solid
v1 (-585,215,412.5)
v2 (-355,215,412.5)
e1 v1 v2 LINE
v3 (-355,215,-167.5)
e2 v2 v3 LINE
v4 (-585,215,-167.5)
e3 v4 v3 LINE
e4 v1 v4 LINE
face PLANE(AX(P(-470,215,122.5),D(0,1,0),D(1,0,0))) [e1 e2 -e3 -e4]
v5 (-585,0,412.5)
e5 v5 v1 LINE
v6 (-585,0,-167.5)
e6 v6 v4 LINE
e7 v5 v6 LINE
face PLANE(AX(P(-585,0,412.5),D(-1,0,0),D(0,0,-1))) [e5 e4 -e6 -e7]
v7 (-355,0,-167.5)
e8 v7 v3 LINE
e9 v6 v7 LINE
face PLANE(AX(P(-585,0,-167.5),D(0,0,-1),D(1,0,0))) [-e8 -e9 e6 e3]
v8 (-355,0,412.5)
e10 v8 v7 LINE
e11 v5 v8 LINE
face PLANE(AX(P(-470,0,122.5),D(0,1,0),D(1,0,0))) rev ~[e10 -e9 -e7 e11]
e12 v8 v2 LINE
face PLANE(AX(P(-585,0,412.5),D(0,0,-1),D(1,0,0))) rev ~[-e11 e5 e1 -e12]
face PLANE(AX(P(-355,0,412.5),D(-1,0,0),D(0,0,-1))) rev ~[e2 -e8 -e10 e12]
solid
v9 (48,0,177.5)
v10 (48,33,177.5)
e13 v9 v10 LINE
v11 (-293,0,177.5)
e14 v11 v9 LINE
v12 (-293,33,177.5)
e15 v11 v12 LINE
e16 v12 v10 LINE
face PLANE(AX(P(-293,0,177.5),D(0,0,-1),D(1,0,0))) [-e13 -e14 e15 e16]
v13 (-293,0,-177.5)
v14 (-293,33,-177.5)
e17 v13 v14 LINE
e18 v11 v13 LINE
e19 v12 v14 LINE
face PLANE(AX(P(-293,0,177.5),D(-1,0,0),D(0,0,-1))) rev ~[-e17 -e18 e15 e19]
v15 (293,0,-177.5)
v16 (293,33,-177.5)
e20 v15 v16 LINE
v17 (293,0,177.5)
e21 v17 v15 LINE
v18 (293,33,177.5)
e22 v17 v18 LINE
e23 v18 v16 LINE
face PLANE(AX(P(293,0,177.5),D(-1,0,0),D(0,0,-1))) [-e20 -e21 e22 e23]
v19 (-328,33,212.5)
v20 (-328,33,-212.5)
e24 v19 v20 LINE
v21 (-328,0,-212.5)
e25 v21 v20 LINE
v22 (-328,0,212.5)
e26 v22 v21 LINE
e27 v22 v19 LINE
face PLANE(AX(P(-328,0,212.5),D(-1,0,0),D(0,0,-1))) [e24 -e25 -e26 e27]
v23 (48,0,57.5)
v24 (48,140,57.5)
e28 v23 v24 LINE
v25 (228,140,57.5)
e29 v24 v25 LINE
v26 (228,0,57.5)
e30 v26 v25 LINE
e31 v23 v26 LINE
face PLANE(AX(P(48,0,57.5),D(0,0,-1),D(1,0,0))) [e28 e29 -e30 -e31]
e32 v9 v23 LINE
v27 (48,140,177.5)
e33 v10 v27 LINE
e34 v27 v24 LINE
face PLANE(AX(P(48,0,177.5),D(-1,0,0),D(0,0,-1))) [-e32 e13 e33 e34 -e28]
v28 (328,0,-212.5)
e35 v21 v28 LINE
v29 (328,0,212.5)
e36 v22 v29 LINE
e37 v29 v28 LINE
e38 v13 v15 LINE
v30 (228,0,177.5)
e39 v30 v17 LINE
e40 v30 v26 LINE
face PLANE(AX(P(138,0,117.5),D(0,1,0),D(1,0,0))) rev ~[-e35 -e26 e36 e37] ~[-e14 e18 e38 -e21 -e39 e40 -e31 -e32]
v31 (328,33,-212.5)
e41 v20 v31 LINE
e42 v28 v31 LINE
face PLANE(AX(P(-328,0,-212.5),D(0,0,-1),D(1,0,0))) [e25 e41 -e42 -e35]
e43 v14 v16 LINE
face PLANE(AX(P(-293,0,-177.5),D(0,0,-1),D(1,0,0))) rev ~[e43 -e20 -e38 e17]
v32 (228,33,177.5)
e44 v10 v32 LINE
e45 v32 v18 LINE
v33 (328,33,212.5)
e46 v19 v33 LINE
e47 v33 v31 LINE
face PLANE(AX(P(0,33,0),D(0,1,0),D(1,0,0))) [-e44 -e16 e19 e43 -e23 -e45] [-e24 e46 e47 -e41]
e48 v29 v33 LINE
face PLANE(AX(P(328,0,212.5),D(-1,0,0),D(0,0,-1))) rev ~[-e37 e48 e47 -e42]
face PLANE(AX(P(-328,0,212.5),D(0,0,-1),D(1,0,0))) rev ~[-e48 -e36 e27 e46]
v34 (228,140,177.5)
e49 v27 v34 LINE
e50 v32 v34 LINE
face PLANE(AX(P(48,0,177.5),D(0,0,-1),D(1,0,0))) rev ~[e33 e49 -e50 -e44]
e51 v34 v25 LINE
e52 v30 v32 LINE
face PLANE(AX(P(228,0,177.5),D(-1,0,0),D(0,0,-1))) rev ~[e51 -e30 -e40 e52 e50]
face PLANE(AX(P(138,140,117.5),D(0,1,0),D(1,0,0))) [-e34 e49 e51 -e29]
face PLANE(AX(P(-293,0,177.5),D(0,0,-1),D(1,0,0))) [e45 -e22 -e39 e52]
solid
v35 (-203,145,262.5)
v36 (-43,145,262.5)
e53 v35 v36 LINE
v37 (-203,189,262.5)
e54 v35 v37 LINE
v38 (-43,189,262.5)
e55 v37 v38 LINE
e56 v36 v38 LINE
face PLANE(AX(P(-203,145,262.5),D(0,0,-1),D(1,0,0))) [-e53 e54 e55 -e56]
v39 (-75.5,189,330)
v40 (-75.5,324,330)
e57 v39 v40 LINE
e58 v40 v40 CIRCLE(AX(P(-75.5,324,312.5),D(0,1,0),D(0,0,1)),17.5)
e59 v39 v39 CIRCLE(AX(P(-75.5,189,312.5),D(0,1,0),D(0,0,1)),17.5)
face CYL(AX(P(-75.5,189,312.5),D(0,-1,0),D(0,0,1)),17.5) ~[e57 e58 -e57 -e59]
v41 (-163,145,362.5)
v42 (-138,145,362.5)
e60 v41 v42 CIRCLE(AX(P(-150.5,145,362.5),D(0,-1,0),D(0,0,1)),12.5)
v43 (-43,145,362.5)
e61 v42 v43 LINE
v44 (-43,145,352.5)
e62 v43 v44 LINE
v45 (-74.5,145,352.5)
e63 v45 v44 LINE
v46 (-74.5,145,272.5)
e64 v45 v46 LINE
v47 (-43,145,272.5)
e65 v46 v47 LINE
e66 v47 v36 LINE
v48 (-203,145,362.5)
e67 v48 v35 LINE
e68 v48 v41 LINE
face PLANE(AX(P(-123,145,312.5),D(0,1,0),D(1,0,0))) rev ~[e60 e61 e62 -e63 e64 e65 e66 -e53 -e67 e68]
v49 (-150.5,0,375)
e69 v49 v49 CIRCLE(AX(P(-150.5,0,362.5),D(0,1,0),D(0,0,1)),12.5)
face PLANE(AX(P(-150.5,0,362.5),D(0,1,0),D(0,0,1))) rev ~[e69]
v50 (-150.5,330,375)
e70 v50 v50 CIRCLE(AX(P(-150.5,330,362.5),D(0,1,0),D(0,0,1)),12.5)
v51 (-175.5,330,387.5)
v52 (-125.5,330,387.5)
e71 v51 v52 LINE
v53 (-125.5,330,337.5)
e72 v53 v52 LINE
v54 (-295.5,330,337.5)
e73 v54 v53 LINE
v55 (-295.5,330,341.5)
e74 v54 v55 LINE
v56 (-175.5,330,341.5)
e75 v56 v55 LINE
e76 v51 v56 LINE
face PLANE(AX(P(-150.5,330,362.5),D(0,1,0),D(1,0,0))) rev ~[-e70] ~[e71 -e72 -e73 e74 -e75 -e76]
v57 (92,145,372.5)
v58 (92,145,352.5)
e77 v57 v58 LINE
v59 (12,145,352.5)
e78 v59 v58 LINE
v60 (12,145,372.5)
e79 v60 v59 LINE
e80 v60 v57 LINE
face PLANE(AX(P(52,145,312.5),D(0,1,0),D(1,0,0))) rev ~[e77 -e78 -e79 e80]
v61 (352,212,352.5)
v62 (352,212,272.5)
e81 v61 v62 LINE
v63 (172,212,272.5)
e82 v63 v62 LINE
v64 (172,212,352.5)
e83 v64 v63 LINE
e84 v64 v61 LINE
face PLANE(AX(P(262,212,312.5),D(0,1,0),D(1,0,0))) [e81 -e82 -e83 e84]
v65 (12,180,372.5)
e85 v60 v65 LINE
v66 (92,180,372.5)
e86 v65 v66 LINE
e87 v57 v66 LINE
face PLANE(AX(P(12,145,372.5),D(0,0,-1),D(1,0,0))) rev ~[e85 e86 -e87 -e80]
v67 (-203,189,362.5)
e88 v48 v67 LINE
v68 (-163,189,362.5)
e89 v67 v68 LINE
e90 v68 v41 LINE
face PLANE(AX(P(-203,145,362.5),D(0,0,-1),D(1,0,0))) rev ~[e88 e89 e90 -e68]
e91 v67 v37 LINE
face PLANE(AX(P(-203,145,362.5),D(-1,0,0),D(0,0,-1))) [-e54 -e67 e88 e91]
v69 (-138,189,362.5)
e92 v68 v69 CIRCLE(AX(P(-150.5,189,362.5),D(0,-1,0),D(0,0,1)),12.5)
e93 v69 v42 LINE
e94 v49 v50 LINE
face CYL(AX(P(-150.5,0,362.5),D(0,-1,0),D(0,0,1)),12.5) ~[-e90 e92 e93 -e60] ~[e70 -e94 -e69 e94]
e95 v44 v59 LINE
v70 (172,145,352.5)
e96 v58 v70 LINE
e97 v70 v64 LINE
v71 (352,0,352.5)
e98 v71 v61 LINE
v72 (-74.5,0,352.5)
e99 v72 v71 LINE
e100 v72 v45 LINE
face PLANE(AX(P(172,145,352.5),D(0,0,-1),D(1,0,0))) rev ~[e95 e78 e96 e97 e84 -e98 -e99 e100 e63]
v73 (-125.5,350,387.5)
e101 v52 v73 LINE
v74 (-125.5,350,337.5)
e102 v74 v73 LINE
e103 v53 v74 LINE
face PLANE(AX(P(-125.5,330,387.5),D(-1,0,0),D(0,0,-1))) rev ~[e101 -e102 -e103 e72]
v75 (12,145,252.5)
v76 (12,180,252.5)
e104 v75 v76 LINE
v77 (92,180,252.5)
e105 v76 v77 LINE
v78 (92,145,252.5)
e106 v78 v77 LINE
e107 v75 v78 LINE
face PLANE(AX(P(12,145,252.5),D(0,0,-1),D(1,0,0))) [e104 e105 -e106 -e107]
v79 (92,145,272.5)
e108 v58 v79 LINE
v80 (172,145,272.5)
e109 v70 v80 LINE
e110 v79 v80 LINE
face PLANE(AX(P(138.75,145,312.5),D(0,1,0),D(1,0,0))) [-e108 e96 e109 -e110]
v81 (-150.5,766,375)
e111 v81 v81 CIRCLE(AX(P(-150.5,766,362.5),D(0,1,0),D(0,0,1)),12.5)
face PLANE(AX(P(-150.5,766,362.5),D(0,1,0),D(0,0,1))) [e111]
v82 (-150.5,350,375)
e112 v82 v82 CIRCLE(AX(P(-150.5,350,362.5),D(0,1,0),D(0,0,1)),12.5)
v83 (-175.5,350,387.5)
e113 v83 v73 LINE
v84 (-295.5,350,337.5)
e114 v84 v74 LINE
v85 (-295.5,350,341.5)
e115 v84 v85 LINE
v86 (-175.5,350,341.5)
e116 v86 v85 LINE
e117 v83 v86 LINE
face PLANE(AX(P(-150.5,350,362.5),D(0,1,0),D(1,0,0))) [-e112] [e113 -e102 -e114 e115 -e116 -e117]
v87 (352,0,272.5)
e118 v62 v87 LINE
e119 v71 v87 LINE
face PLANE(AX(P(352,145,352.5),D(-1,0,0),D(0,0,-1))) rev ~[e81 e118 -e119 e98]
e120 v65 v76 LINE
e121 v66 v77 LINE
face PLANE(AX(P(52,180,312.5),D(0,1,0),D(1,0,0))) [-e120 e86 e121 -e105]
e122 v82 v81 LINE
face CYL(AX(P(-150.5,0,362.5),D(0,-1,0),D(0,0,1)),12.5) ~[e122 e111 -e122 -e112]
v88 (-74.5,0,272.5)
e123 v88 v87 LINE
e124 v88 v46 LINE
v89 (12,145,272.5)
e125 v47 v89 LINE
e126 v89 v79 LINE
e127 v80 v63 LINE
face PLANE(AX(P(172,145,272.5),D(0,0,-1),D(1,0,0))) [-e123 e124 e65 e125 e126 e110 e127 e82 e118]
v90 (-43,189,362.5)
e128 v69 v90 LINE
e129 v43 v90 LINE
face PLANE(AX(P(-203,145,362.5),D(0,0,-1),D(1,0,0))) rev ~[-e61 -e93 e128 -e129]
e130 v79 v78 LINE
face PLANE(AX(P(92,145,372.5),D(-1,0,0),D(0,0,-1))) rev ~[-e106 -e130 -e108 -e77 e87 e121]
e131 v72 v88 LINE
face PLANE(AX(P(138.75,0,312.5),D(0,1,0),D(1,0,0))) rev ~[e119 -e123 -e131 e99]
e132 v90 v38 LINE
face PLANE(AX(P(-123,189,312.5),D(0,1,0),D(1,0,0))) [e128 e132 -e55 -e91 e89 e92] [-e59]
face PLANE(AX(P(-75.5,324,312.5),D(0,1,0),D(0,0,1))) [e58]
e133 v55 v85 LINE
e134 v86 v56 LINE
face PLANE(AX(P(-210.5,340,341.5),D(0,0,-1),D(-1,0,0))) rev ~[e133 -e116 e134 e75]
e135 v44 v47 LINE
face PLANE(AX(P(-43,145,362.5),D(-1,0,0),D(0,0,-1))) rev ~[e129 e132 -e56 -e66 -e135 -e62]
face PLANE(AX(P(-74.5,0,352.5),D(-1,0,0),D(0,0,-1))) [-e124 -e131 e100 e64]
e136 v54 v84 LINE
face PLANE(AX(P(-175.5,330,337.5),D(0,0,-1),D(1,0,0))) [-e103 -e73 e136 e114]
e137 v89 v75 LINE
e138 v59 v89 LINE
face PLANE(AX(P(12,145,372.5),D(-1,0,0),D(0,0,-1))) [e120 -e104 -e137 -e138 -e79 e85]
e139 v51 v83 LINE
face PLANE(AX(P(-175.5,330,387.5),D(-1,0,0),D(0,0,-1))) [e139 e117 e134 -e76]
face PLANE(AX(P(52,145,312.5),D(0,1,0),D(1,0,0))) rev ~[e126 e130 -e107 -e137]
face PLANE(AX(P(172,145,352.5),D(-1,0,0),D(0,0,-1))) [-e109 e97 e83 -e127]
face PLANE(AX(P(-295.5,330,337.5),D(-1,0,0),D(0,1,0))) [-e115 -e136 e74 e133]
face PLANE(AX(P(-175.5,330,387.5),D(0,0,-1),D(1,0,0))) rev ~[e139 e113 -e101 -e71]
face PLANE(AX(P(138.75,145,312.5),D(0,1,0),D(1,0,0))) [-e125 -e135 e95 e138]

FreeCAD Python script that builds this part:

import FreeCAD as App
import Part
import Sketcher

V = App.Vector

doc = App.newDocument("Part")
body = doc.addObject("PartDesign::Body", "Body")

# Sketch on XZ plane
sketch1 = doc.addObject("Sketcher::SketchObject", "Sketch")
body.addObject(sketch1)
sketch1.AttachmentSupport = (doc.XZ_Plane, [""])
sketch1.MapMode = "FlatFace"
sketch1.addGeometry([
    Part.LineSegment(V(-328, -212.5, 0), V(-328, 212.5, 0)),  # 0
    Part.LineSegment(V(-328, 212.5, 0), V(328, 212.5, 0)),  # 1
    Part.LineSegment(V(328, 212.5, 0), V(328, -212.5, 0)),  # 2
    Part.LineSegment(V(328, -212.5, 0), V(-328, -212.5, 0)),  # 3
    Part.LineSegment(V(293, 177.5, 0), V(-293, 177.5, 0)),  # 4
    Part.LineSegment(V(-293, 177.5, 0), V(-293, -177.5, 0)),  # 5
    Part.LineSegment(V(-293, -177.5, 0), V(293, -177.5, 0)),  # 6
    Part.LineSegment(V(293, -177.5, 0), V(293, 177.5, 0)),  # 7
], False)
sketch1.addConstraint([
    Sketcher.Constraint("Coincident", 0, 2, 1, 1),
    Sketcher.Constraint("Coincident", 1, 2, 2, 1),
    Sketcher.Constraint("Coincident", 2, 2, 3, 1),
    Sketcher.Constraint("Coincident", 3, 2, 0, 1),
    Sketcher.Constraint("Coincident", 4, 2, 5, 1),
    Sketcher.Constraint("Coincident", 5, 2, 6, 1),
    Sketcher.Constraint("Coincident", 6, 2, 7, 1),
    Sketcher.Constraint("Coincident", 7, 2, 4, 1),
    Sketcher.Constraint("Vertical", 0),
    Sketcher.Constraint("Horizontal", 1),
    Sketcher.Constraint("Vertical", 2),
    Sketcher.Constraint("Horizontal", 3),
    Sketcher.Constraint("Horizontal", 4),
    Sketcher.Constraint("Vertical", 5),
    Sketcher.Constraint("Horizontal", 6),
    Sketcher.Constraint("Vertical", 7),
    Sketcher.Constraint("Symmetric", 0, 2, 2, 2, -1, 1),
    Sketcher.Constraint("Symmetric", 4, 2, 6, 2, -1, 1),
    Sketcher.Constraint("DistanceX", 1, 1, 1, 2, 656.0),
    Sketcher.Constraint("DistanceX", 4, 2, 4, 1, 586.0),
    Sketcher.Constraint("DistanceY", 0, 1, 0, 2, 425.0),
    Sketcher.Constraint("DistanceY", 5, 2, 5, 1, 355.0),
])
pad1 = doc.addObject("PartDesign::Pad", "Pad")
body.addObject(pad1)
pad1.Profile = sketch1
pad1.Length = 33
pad1.Reversed = True

# Sketch on XZ plane
sketch2 = doc.addObject("Sketcher::SketchObject", "Sketch001")
body.addObject(sketch2)
sketch2.AttachmentSupport = (doc.XZ_Plane, [""])
sketch2.MapMode = "FlatFace"
sketch2.addGeometry([
    Part.LineSegment(V(48, 57.5, 0), V(48, 177.5, 0)),
    Part.LineSegment(V(48, 177.5, 0), V(228, 177.5, 0)),
    Part.LineSegment(V(228, 177.5, 0), V(228, 57.5, 0)),
    Part.LineSegment(V(228, 57.5, 0), V(48, 57.5, 0)),
], False)
sketch2.addConstraint([
    Sketcher.Constraint("Coincident", 0, 2, 1, 1),
    Sketcher.Constraint("Coincident", 1, 2, 2, 1),
    Sketcher.Constraint("Coincident", 2, 2, 3, 1),
    Sketcher.Constraint("Coincident", 3, 2, 0, 1),
    Sketcher.Constraint("Vertical", 0),
    Sketcher.Constraint("Horizontal", 1),
    Sketcher.Constraint("Vertical", 2),
    Sketcher.Constraint("Horizontal", 3),
    Sketcher.Constraint("DistanceX", 1, 1, 1, 2, 180.0),
    Sketcher.Constraint("DistanceY", 0, 1, 0, 2, 120.0),
    Sketcher.Constraint("DistanceX", -1, 1, 0, 2, 48.0),
    Sketcher.Constraint("DistanceY", -1, 1, 0, 2, 177.5),
])
pad2 = doc.addObject("PartDesign::Pad", "Pad001")
body.addObject(pad2)
pad2.Profile = sketch2
pad2.Length = 140
pad2.Reversed = True
body2 = doc.addObject("PartDesign::Body", "Body001")

# Sketch on XZ plane
sketch3 = doc.addObject("Sketcher::SketchObject", "Sketch002")
body2.addObject(sketch3)
sketch3.AttachmentSupport = (doc.getObject("XZ_Plane001"), [""])
sketch3.MapMode = "FlatFace"
sketch3.addGeometry([
    Part.LineSegment(V(-74.5, 272.5, 0), V(-74.5, 352.5, 0)),
    Part.LineSegment(V(-74.5, 352.5, 0), V(352, 352.5, 0)),
    Part.LineSegment(V(352, 352.5, 0), V(352, 272.5, 0)),
    Part.LineSegment(V(352, 272.5, 0), V(-74.5, 272.5, 0)),
], False)
sketch3.addConstraint([
    Sketcher.Constraint("Coincident", 0, 2, 1, 1),
    Sketcher.Constraint("Coincident", 1, 2, 2, 1),
    Sketcher.Constraint("Coincident", 2, 2, 3, 1),
    Sketcher.Constraint("Coincident", 3, 2, 0, 1),
    Sketcher.Constraint("Vertical", 0),
    Sketcher.Constraint("Horizontal", 1),
    Sketcher.Constraint("Vertical", 2),
    Sketcher.Constraint("Horizontal", 3),
    Sketcher.Constraint("DistanceY", 0, 1, 0, 2, 80.0),
    Sketcher.Constraint("DistanceX", 1, 1, 1, 2, 426.5),
    Sketcher.Constraint("DistanceX", -1, 1, 1, 2, 352.0),
    Sketcher.Constraint("DistanceY", -1, 1, 0, 2, 352.5),
])
pad3 = doc.addObject("PartDesign::Pad", "Pad002")
body2.addObject(pad3)
pad3.Profile = sketch3
pad3.Length = 145
pad3.Reversed = True

# Sketch on XZ plane
sketch4 = doc.addObject("Sketcher::SketchObject", "Sketch003")
body2.addObject(sketch4)
sketch4.AttachmentSupport = (doc.getObject("XZ_Plane001"), [""])
sketch4.MapMode = "FlatFace"
sketch4.AttachmentOffset = App.Placement(V(0, 0, -145), App.Rotation())
sketch4.addGeometry([
    Part.LineSegment(V(172, 272.5, 0), V(172, 352.5, 0)),
    Part.LineSegment(V(172, 352.5, 0), V(352, 352.5, 0)),
    Part.LineSegment(V(352, 352.5, 0), V(352, 272.5, 0)),
    Part.LineSegment(V(352, 272.5, 0), V(172, 272.5, 0)),
], False)
sketch4.addConstraint([
    Sketcher.Constraint("Coincident", 0, 2, 1, 1),
    Sketcher.Constraint("Coincident", 1, 2, 2, 1),
    Sketcher.Constraint("Coincident", 2, 2, 3, 1),
    Sketcher.Constraint("Coincident", 3, 2, 0, 1),
    Sketcher.Constraint("Vertical", 0),
    Sketcher.Constraint("Horizontal", 1),
    Sketcher.Constraint("Vertical", 2),
    Sketcher.Constraint("Horizontal", 3),
    Sketcher.Constraint("DistanceX", 1, 1, 1, 2, 180.0),
    Sketcher.Constraint("DistanceY", 0, 1, 0, 2, 80.0),
    Sketcher.Constraint("DistanceX", -1, 1, 0, 2, 172.0),
    Sketcher.Constraint("DistanceY", -1, 1, 0, 2, 352.5),
])
pad4 = doc.addObject("PartDesign::Pad", "Pad003")
body2.addObject(pad4)
pad4.Profile = sketch4
pad4.Length = 67
pad4.Reversed = True

# Sketch on XZ plane
sketch5 = doc.addObject("Sketcher::SketchObject", "Sketch004")
body2.addObject(sketch5)
sketch5.AttachmentSupport = (doc.getObject("XZ_Plane001"), [""])
sketch5.MapMode = "FlatFace"
sketch5.AttachmentOffset = App.Placement(V(0, 0, -145), App.Rotation())
sketch5.addGeometry([
    Part.LineSegment(V(12, 252.5, 0), V(12, 372.5, 0)),
    Part.LineSegment(V(12, 372.5, 0), V(92, 372.5, 0)),
    Part.LineSegment(V(92, 372.5, 0), V(92, 252.5, 0)),
    Part.LineSegment(V(92, 252.5, 0), V(12, 252.5, 0)),
], False)
sketch5.addConstraint([
    Sketcher.Constraint("Coincident", 0, 2, 1, 1),
    Sketcher.Constraint("Coincident", 1, 2, 2, 1),
    Sketcher.Constraint("Coincident", 2, 2, 3, 1),
    Sketcher.Constraint("Coincident", 3, 2, 0, 1),
    Sketcher.Constraint("Vertical", 0),
    Sketcher.Constraint("Horizontal", 1),
    Sketcher.Constraint("Vertical", 2),
    Sketcher.Constraint("Horizontal", 3),
    Sketcher.Constraint("DistanceX", 1, 1, 1, 2, 80.0),
    Sketcher.Constraint("DistanceY", 0, 1, 0, 2, 120.0),
    Sketcher.Constraint("DistanceX", -1, 1, 0, 2, 12.0),
    Sketcher.Constraint("DistanceY", -1, 1, 0, 2, 372.5),
])
pad5 = doc.addObject("PartDesign::Pad", "Pad004")
body2.addObject(pad5)
pad5.Profile = sketch5
pad5.Length = 35
pad5.Reversed = True

# Sketch on XZ plane
sketch6 = doc.addObject("Sketcher::SketchObject", "Sketch005")
body2.addObject(sketch6)
sketch6.AttachmentSupport = (doc.getObject("XZ_Plane001"), [""])
sketch6.MapMode = "FlatFace"
sketch6.AttachmentOffset = App.Placement(V(0, 0, -145), App.Rotation())
sketch6.addGeometry([
    Part.LineSegment(V(-203, 262.5, 0), V(-203, 362.5, 0)),
    Part.LineSegment(V(-203, 362.5, 0), V(-43, 362.5, 0)),
    Part.LineSegment(V(-43, 362.5, 0), V(-43, 262.5, 0)),
    Part.LineSegment(V(-43, 262.5, 0), V(-203, 262.5, 0)),
], False)
sketch6.addConstraint([
    Sketcher.Constraint("Coincident", 0, 2, 1, 1),
    Sketcher.Constraint("Coincident", 1, 2, 2, 1),
    Sketcher.Constraint("Coincident", 2, 2, 3, 1),
    Sketcher.Constraint("Coincident", 3, 2, 0, 1),
    Sketcher.Constraint("Vertical", 0),
    Sketcher.Constraint("Horizontal", 1),
    Sketcher.Constraint("Vertical", 2),
    Sketcher.Constraint("Horizontal", 3),
    Sketcher.Constraint("DistanceX", 1, 1, 1, 2, 160.0),
    Sketcher.Constraint("DistanceY", 0, 1, 0, 2, 100.0),
    Sketcher.Constraint("DistanceX", 0, 2, -1, 1, 203.0),
    Sketcher.Constraint("DistanceY", -1, 1, 0, 2, 362.5),
])
pad6 = doc.addObject("PartDesign::Pad", "Pad005")
body2.addObject(pad6)
pad6.Profile = sketch6
pad6.Length = 44
pad6.Reversed = True

# Sketch on XZ plane
sketch7 = doc.addObject("Sketcher::SketchObject", "Sketch006")
body2.addObject(sketch7)
sketch7.AttachmentSupport = (doc.getObject("XZ_Plane001"), [""])
sketch7.MapMode = "FlatFace"
sketch7.AttachmentOffset = App.Placement(V(0, 0, -189), App.Rotation())
sketch7.addGeometry(Part.Circle(V(-75.5, 312.5, 0), V(0, 0, 1), 17.5), False)
sketch7.addConstraint([
    Sketcher.Constraint("Diameter", 0, 35.0),
    Sketcher.Constraint("DistanceX", 0, 3, -1, 1, 75.5),
    Sketcher.Constraint("DistanceY", -1, 1, 0, 3, 312.5),
])
pad7 = doc.addObject("PartDesign::Pad", "Pad006")
body2.addObject(pad7)
pad7.Profile = sketch7
pad7.Length = 135
pad7.Reversed = True

# Sketch on XZ plane
sketch8 = doc.addObject("Sketcher::SketchObject", "Sketch007")
body2.addObject(sketch8)
sketch8.AttachmentSupport = (doc.getObject("XZ_Plane001"), [""])
sketch8.MapMode = "FlatFace"
sketch8.addGeometry(Part.Circle(V(-150.5, 362.5, 0), V(0, 0, 1), 12.5), False)
sketch8.addConstraint([
    Sketcher.Constraint("Diameter", 0, 25.0),
    Sketcher.Constraint("DistanceX", 0, 3, -1, 1, 150.5),
    Sketcher.Constraint("DistanceY", -1, 1, 0, 3, 362.5),
])
pad8 = doc.addObject("PartDesign::Pad", "Pad007")
body2.addObject(pad8)
pad8.Profile = sketch8
pad8.Length = 766
pad8.Reversed = True

# Sketch on XZ plane
sketch9 = doc.addObject("Sketcher::SketchObject", "Sketch008")
body2.addObject(sketch9)
sketch9.AttachmentSupport = (doc.getObject("XZ_Plane001"), [""])
sketch9.MapMode = "FlatFace"
sketch9.AttachmentOffset = App.Placement(V(0, 0, -330), App.Rotation())
sketch9.addGeometry([
    Part.LineSegment(V(-175.5, 337.5, 0), V(-175.5, 387.5, 0)),  # 0
    Part.LineSegment(V(-175.5, 387.5, 0), V(-125.5, 387.5, 0)),  # 1
    Part.LineSegment(V(-125.5, 387.5, 0), V(-125.5, 337.5, 0)),  # 2
    Part.LineSegment(V(-125.5, 337.5, 0), V(-175.5, 337.5, 0)),  # 3
    Part.Circle(V(-150.5, 362.5, 0), V(0, 0, 1), 12.5),  # 4
], False)
sketch9.addConstraint([
    Sketcher.Constraint("Coincident", 0, 2, 1, 1),
    Sketcher.Constraint("Coincident", 1, 2, 2, 1),
    Sketcher.Constraint("Coincident", 2, 2, 3, 1),
    Sketcher.Constraint("Coincident", 3, 2, 0, 1),
    Sketcher.Constraint("Vertical", 0),
    Sketcher.Constraint("Horizontal", 1),
    Sketcher.Constraint("Vertical", 2),
    Sketcher.Constraint("Horizontal", 3),
    Sketcher.Constraint("Equal", 3, 0),
    Sketcher.Constraint("Diameter", 4, 25.0),
    Sketcher.Constraint("DistanceX", 1, 1, 1, 2, 50.0),
    Sketcher.Constraint("DistanceX", 0, 2, 4, 3, 25.0),
    Sketcher.Constraint("DistanceY", 4, 3, 0, 2, 25.0),
    Sketcher.Constraint("DistanceX", 4, 3, -1, 1, 150.5),
    Sketcher.Constraint("DistanceY", -1, 1, 4, 3, 362.5),
])
pad9 = doc.addObject("PartDesign::Pad", "Pad008")
body2.addObject(pad9)
pad9.Profile = sketch9
pad9.Length = 20
pad9.Reversed = True

# Sketch on XY plane
sketch10 = doc.addObject("Sketcher::SketchObject", "Sketch009")
body2.addObject(sketch10)
sketch10.AttachmentSupport = (doc.getObject("XY_Plane001"), [""])
sketch10.MapMode = "FlatFace"
sketch10.AttachmentOffset = App.Placement(V(0, 0, 337.5), App.Rotation())
sketch10.addGeometry([
    Part.LineSegment(V(-125.5, 350, 0), V(-125.5, 330, 0)),
    Part.LineSegment(V(-125.5, 330, 0), V(-295.5, 330, 0)),
    Part.LineSegment(V(-295.5, 330, 0), V(-295.5, 350, 0)),
    Part.LineSegment(V(-295.5, 350, 0), V(-125.5, 350, 0)),
], False)
sketch10.addConstraint([
    Sketcher.Constraint("Coincident", 0, 2, 1, 1),
    Sketcher.Constraint("Coincident", 1, 2, 2, 1),
    Sketcher.Constraint("Coincident", 2, 2, 3, 1),
    Sketcher.Constraint("Coincident", 3, 2, 0, 1),
    Sketcher.Constraint("Vertical", 0),
    Sketcher.Constraint("Horizontal", 1),
    Sketcher.Constraint("Vertical", 2),
    Sketcher.Constraint("Horizontal", 3),
    Sketcher.Constraint("DistanceX", 1, 2, 1, 1, 170.0),
    Sketcher.Constraint("DistanceY", 0, 2, 0, 1, 20.0),
    Sketcher.Constraint("DistanceY", -1, 1, 0, 2, 330.0),
    Sketcher.Constraint("DistanceX", 0, 2, -1, 1, 125.5),
])
pad10 = doc.addObject("PartDesign::Pad", "Pad009")
body2.addObject(pad10)
pad10.Profile = sketch10
pad10.Length = 4
body3 = doc.addObject("PartDesign::Body", "Body002")

# Sketch on XZ plane
sketch11 = doc.addObject("Sketcher::SketchObject", "Sketch010")
body3.addObject(sketch11)
sketch11.AttachmentSupport = (doc.getObject("XZ_Plane002"), [""])
sketch11.MapMode = "FlatFace"
sketch11.addGeometry([
    Part.LineSegment(V(-585, -167.5, 0), V(-585, 412.5, 0)),
    Part.LineSegment(V(-585, 412.5, 0), V(-355, 412.5, 0)),
    Part.LineSegment(V(-355, 412.5, 0), V(-355, -167.5, 0)),
    Part.LineSegment(V(-355, -167.5, 0), V(-585, -167.5, 0)),
], False)
sketch11.addConstraint([
    Sketcher.Constraint("Coincident", 0, 2, 1, 1),
    Sketcher.Constraint("Coincident", 1, 2, 2, 1),
    Sketcher.Constraint("Coincident", 2, 2, 3, 1),
    Sketcher.Constraint("Coincident", 3, 2, 0, 1),
    Sketcher.Constraint("Vertical", 0),
    Sketcher.Constraint("Horizontal", 1),
    Sketcher.Constraint("Vertical", 2),
    Sketcher.Constraint("Horizontal", 3),
    Sketcher.Constraint("DistanceX", 1, 1, 1, 2, 230.0),
    Sketcher.Constraint("DistanceY", 0, 1, 0, 2, 580.0),
    Sketcher.Constraint("DistanceX", 0, 2, -1, 1, 585.0),
    Sketcher.Constraint("DistanceY", -1, 1, 0, 2, 412.5),
])
pad11 = doc.addObject("PartDesign::Pad", "Pad010")
body3.addObject(pad11)
pad11.Profile = sketch11
pad11.Length = 215
pad11.Reversed = True

doc.recompute()
